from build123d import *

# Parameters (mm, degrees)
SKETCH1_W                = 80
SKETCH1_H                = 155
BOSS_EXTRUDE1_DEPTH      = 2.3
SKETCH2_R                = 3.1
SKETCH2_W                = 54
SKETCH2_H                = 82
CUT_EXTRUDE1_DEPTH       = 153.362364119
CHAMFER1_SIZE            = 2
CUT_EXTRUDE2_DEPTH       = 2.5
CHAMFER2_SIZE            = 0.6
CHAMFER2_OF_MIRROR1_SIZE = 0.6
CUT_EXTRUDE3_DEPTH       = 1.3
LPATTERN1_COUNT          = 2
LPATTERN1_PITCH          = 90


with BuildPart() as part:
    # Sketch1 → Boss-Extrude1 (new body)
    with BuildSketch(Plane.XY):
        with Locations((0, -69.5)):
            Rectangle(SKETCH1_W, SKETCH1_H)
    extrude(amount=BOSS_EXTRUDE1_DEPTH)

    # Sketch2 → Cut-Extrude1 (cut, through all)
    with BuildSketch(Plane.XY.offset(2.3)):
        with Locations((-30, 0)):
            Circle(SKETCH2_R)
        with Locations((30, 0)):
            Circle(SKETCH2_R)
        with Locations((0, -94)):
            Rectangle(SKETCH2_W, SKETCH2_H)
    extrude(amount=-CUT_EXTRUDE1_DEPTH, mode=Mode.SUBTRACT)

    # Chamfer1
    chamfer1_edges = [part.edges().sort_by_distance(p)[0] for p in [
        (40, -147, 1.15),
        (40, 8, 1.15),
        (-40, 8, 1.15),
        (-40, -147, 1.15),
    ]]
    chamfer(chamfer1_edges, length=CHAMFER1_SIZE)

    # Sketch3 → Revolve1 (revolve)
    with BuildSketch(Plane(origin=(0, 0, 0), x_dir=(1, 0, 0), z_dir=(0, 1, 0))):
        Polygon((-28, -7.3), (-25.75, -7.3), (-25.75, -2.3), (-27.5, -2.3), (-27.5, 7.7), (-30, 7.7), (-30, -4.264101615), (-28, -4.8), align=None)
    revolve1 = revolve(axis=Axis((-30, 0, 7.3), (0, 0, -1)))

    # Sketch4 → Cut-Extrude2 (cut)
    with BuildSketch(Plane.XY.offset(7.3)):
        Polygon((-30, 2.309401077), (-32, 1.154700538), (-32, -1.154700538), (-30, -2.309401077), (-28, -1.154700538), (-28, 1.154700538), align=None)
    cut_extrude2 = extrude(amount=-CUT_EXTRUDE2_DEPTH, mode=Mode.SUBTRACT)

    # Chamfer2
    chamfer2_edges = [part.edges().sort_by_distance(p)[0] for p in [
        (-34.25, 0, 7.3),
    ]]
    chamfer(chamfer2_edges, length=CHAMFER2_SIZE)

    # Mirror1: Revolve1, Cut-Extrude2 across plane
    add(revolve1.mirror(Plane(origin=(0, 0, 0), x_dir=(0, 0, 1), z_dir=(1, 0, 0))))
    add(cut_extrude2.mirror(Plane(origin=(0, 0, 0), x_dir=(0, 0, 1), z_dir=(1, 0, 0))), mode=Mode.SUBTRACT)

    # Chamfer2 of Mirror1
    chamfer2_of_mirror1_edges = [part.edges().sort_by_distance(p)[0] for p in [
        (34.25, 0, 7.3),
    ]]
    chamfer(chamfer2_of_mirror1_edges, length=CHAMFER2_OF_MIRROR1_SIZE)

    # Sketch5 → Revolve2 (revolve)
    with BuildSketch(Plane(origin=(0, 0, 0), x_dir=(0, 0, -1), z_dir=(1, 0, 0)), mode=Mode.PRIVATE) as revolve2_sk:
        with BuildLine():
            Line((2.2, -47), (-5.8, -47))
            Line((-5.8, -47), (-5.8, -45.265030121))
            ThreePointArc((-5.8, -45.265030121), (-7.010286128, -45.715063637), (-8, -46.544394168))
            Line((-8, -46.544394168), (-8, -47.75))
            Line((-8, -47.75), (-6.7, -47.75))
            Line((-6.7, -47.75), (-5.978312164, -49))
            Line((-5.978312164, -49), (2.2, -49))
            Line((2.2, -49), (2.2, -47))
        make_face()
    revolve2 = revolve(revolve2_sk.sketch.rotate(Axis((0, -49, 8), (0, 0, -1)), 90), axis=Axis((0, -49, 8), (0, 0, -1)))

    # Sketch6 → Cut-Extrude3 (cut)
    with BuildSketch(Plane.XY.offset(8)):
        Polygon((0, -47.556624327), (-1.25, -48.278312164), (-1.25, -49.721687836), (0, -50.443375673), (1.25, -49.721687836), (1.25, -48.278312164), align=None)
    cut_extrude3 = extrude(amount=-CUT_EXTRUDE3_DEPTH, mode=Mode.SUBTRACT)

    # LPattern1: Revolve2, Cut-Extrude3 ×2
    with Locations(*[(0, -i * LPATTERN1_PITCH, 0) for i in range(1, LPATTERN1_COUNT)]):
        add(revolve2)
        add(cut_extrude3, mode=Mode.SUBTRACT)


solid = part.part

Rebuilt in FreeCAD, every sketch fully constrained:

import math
import FreeCAD as App
import Part
import Sketcher
Q = App.Units.Quantity


def edges_at(feature, points):
    """Names of the edges that pass closest to the given points."""
    edges = feature.Shape.Edges
    near = lambda p: min(range(len(edges)), key=lambda i: edges[i].distToShape(Part.Vertex(*p))[0])
    return sorted({f"Edge{near(p) + 1}" for p in points})


def add_polygon(sketch, points):
    """Adds a closed chain of lines whose ends are joined by coincident constraints."""
    first, n = sketch.GeometryCount, len(points)
    for a, b in zip(points, points[1:] + points[:1]):
        sketch.addGeometry(Part.LineSegment(App.Vector(*a, 0), App.Vector(*b, 0)), False)
    for i in range(n):
        sketch.addConstraint(Sketcher.Constraint("Coincident", first + i, 2, first + (i + 1) % n, 1))

doc = App.newDocument("Part")
body = doc.addObject("PartDesign::Body", "Body")

# Sketch on XY plane
sketch1 = body.newObject("Sketcher::SketchObject", "Sketch")
sketch1.AttachmentSupport = (doc.getObject("XY_Plane"), [""])
sketch1.MapMode = "FlatFace"
add_polygon(sketch1, [(-40, 8), (-40, -147), (40, -147), (40, 8)])  # lines 0-3
sketch1.addConstraint(Sketcher.Constraint("Vertical", 0))
sketch1.addConstraint(Sketcher.Constraint("Horizontal", 1))
sketch1.addConstraint(Sketcher.Constraint("Vertical", 2))
sketch1.addConstraint(Sketcher.Constraint("Horizontal", 3))
sketch1.addConstraint(Sketcher.Constraint("DistanceX", 1, 1, 1, 2, Q("80 mm")))
sketch1.addConstraint(Sketcher.Constraint("DistanceY", 0, 2, 0, 1, Q("155 mm")))
sketch1.addConstraint(Sketcher.Constraint("DistanceX", 0, 2, -1, 1, Q("40 mm")))
sketch1.addConstraint(Sketcher.Constraint("DistanceY", 0, 2, -1, 1, Q("147 mm")))
pad1 = body.newObject("PartDesign::Pad", "Pad")
pad1.Profile = sketch1
pad1.Length = 2.3

# Sketch on XY plane
sketch2 = body.newObject("Sketcher::SketchObject", "Sketch001")
sketch2.AttachmentSupport = (doc.getObject("XY_Plane"), [""])
sketch2.MapMode = "FlatFace"
sketch2.AttachmentOffset = App.Placement(App.Vector(0, 0, 2.3), App.Rotation())
sketch2.addGeometry(Part.Circle(App.Vector(-30, 0, 0), App.Vector(0, 0, 1), 3.1), False)  # 0
sketch2.addGeometry(Part.Circle(App.Vector(30, 0, 0), App.Vector(0, 0, 1), 3.1), False)  # 1
add_polygon(sketch2, [(-27, -53), (-27, -135), (27, -135), (27, -53)])  # lines 2-5
sketch2.addConstraint(Sketcher.Constraint("Vertical", 2))
sketch2.addConstraint(Sketcher.Constraint("Horizontal", 3))
sketch2.addConstraint(Sketcher.Constraint("Vertical", 4))
sketch2.addConstraint(Sketcher.Constraint("Horizontal", 5))
sketch2.addConstraint(Sketcher.Constraint("Equal", 0, 1))
sketch2.addConstraint(Sketcher.Constraint("Symmetric", 0, 3, 1, 3, -1, 1))
sketch2.addConstraint(Sketcher.Constraint("PointOnObject", 0, 3, -1))
sketch2.addConstraint(Sketcher.Constraint("Diameter", 0, Q("6.2 mm")))
sketch2.addConstraint(Sketcher.Constraint("DistanceX", 3, 1, 3, 2, Q("54 mm")))
sketch2.addConstraint(Sketcher.Constraint("DistanceY", 2, 2, 2, 1, Q("82 mm")))
sketch2.addConstraint(Sketcher.Constraint("DistanceX", 0, 3, -1, 1, Q("30 mm")))
sketch2.addConstraint(Sketcher.Constraint("DistanceX", 2, 2, -1, 1, Q("27 mm")))
sketch2.addConstraint(Sketcher.Constraint("DistanceY", 2, 2, -1, 1, Q("135 mm")))
pocket1 = body.newObject("PartDesign::Pocket", "Pocket")
pocket1.Profile = sketch2
pocket1.Type = "ThroughAll"
doc.recompute()

chamfer = body.newObject("PartDesign::Chamfer", "Chamfer")
chamfer.Base = (pocket1, edges_at(pocket1, [
    (40, -147, 1.15),
    (40, 8, 1.15),
    (-40, 8, 1.15),
    (-40, -147, 1.15),
]))
chamfer.Size = 2

# Sketch on XZ plane
sketch3 = body.newObject("Sketcher::SketchObject", "Sketch002")
sketch3.AttachmentSupport = (doc.getObject("XZ_Plane"), [""])
sketch3.MapMode = "FlatFace"
add_polygon(sketch3, [(-28, 7.3), (-25.75, 7.3), (-25.75, 2.3), (-27.5, 2.3), (-27.5, -7.7), (-30, -7.7), (-30, 4.264102), (-28, 4.8)])  # lines 0-7
sketch3.addGeometry(Part.LineSegment(App.Vector(-30, 7.3, 0), App.Vector(-30, -7.7, 0)), True)  # axis
sketch3.addConstraint(Sketcher.Constraint("Horizontal", 0))
sketch3.addConstraint(Sketcher.Constraint("Vertical", 1))
sketch3.addConstraint(Sketcher.Constraint("Horizontal", 2))
sketch3.addConstraint(Sketcher.Constraint("Vertical", 3))
sketch3.addConstraint(Sketcher.Constraint("Horizontal", 4))
sketch3.addConstraint(Sketcher.Constraint("Vertical", 5))
sketch3.addConstraint(Sketcher.Constraint("Vertical", 7))
sketch3.addConstraint(Sketcher.Constraint("Vertical", 8))
sketch3.addConstraint(Sketcher.Constraint("Coincident", 8, 2, 4, 2))
sketch3.addConstraint(Sketcher.Constraint("Horizontal", 7, 2, 8, 1))
sketch3.addConstraint(Sketcher.Constraint("Equal", 4, 7))
sketch3.addConstraint(Sketcher.Constraint("DistanceY", 1, 2, 1, 1, Q("5 mm")))
sketch3.addConstraint(Sketcher.Constraint("DistanceY", 3, 2, 3, 1, Q("10 mm")))
sketch3.addConstraint(Sketcher.Constraint("Angle", 6, Q("15 deg")))
sketch3.addConstraint(Sketcher.Constraint("DistanceX", 4, 2, 4, 1, Q("2.5 mm")))
sketch3.addConstraint(Sketcher.Constraint("DistanceX", 4, 2, -1, 1, Q("30 mm")))
sketch3.addConstraint(Sketcher.Constraint("DistanceX", 6, 2, -1, 1, Q("28 mm")))
sketch3.addConstraint(Sketcher.Constraint("DistanceX", 0, 1, 0, 2, Q("2.25 mm")))
sketch3.addConstraint(Sketcher.Constraint("DistanceY", -1, 1, 0, 2, Q("7.3 mm")))
revolution = body.newObject("PartDesign::Revolution", "Revolution")
revolution.Profile = sketch3
revolution.ReferenceAxis = (sketch3, ["Axis0"])
revolution.Angle = 360

# Sketch on XY plane
sketch4 = body.newObject("Sketcher::SketchObject", "Sketch003")
sketch4.AttachmentSupport = (doc.getObject("XY_Plane"), [""])
sketch4.MapMode = "FlatFace"
sketch4.AttachmentOffset = App.Placement(App.Vector(0, 0, 7.3), App.Rotation())
add_polygon(sketch4, [(-30, 2.309401), (-32, 1.154701), (-32, -1.154701), (-30, -2.309401), (-28, -1.154701), (-28, 1.154701)])  # lines 0-5
sketch4.addConstraint(Sketcher.Constraint("Vertical", 1))
sketch4.addConstraint(Sketcher.Constraint("Vertical", 4))
sketch4.addConstraint(Sketcher.Constraint("Symmetric", 2, 2, 5, 2, -1))
sketch4.addConstraint(Sketcher.Constraint("Parallel", 0, 3))
sketch4.addConstraint(Sketcher.Constraint("Parallel", 2, 5))
sketch4.addConstraint(Sketcher.Constraint("Horizontal", 1, 2, 3, 2))
sketch4.addConstraint(Sketcher.Constraint("Horizontal", 0, 2, 4, 2))
sketch4.addConstraint(Sketcher.Constraint("Angle", 0, Q("-150 deg")))
sketch4.addConstraint(Sketcher.Constraint("DistanceX", 0, 2, -1, 1, Q("32 mm")))
sketch4.addConstraint(Sketcher.Constraint("DistanceX", 2, 2, -1, 1, Q("30 mm")))
sketch4.addConstraint(Sketcher.Constraint("DistanceY", 1, 2, 1, 1, Q("2.309401 mm")))
pocket2 = body.newObject("PartDesign::Pocket", "Pocket001")
pocket2.Profile = sketch4
pocket2.Length = 2.5
doc.recompute()

chamfer2 = body.newObject("PartDesign::Chamfer", "Chamfer001")
chamfer2.Base = (pocket2, edges_at(pocket2, [(-34.25, 0, 7.3)]))
chamfer2.Size = 0.6
doc.recompute()

mirrored = body.newObject("PartDesign::Mirrored", "Mirrored")
mirrored.Originals = [revolution, pocket2]
mirrored.MirrorPlane = (doc.getObject("YZ_Plane"), [""])
body.Tip = mirrored
doc.recompute()

chamfer3 = body.newObject("PartDesign::Chamfer", "Chamfer002")
chamfer3.Base = (mirrored, edges_at(mirrored, [(34.25, 0, 7.3)]))
chamfer3.Size = 0.6

# Sketch on YZ plane
sketch5 = body.newObject("Sketcher::SketchObject", "Sketch004")
sketch5.AttachmentSupport = (doc.getObject("YZ_Plane"), [""])
sketch5.MapMode = "FlatFace"
sketch5.addGeometry(Part.LineSegment(App.Vector(-47, -2.2, 0), App.Vector(-47, 5.8, 0)), False)
sketch5.addGeometry(Part.LineSegment(App.Vector(-47, 5.8, 0), App.Vector(-45.26503, 5.8, 0)), False)
sketch5.addGeometry(Part.ArcOfCircle(Part.Circle(App.Vector(-49, 5.1, 0), App.Vector(0, 0, 1), 3.8), math.radians(10.615108), math.radians(49.743387)), False)
sketch5.addGeometry(Part.LineSegment(App.Vector(-46.544394, 8, 0), App.Vector(-47.75, 8, 0)), False)
sketch5.addGeometry(Part.LineSegment(App.Vector(-47.75, 8, 0), App.Vector(-47.75, 6.7, 0)), False)
sketch5.addGeometry(Part.LineSegment(App.Vector(-47.75, 6.7, 0), App.Vector(-49, 5.978312, 0)), False)
sketch5.addGeometry(Part.LineSegment(App.Vector(-49, 5.978312, 0), App.Vector(-49, -2.2, 0)), False)
sketch5.addGeometry(Part.LineSegment(App.Vector(-49, -2.2, 0), App.Vector(-47, -2.2, 0)), False)
sketch5.addGeometry(Part.LineSegment(App.Vector(-49, 8, 0), App.Vector(-49, -2.2, 0)), True)  # axis
sketch5.addConstraint(Sketcher.Constraint("Coincident", 0, 2, 1, 1))
sketch5.addConstraint(Sketcher.Constraint("Coincident", 1, 2, 2, 1))
sketch5.addConstraint(Sketcher.Constraint("Coincident", 2, 2, 3, 1))
sketch5.addConstraint(Sketcher.Constraint("Coincident", 3, 2, 4, 1))
sketch5.addConstraint(Sketcher.Constraint("Coincident", 4, 2, 5, 1))
sketch5.addConstraint(Sketcher.Constraint("Coincident", 5, 2, 6, 1))
sketch5.addConstraint(Sketcher.Constraint("Coincident", 6, 2, 7, 1))
sketch5.addConstraint(Sketcher.Constraint("Coincident", 7, 2, 0, 1))
sketch5.addConstraint(Sketcher.Constraint("Vertical", 0))
sketch5.addConstraint(Sketcher.Constraint("Horizontal", 1))
sketch5.addConstraint(Sketcher.Constraint("Horizontal", 3))
sketch5.addConstraint(Sketcher.Constraint("Vertical", 4))
sketch5.addConstraint(Sketcher.Constraint("Vertical", 6))
sketch5.addConstraint(Sketcher.Constraint("Horizontal", 7))
sketch5.addConstraint(Sketcher.Constraint("Vertical", 8))
sketch5.addConstraint(Sketcher.Constraint("Coincident", 8, 2, 6, 2))
sketch5.addConstraint(Sketcher.Constraint("Horizontal", 3, 2, 8, 1))
sketch5.addConstraint(Sketcher.Constraint("Vertical", 2, 3, 5, 2))
sketch5.addConstraint(Sketcher.Constraint("Radius", 2, Q("3.8 mm")))
sketch5.addConstraint(Sketcher.Constraint("DistanceX", 7, 1, 7, 2, Q("2 mm")))
sketch5.addConstraint(Sketcher.Constraint("DistanceY", 0, 1, 0, 2, Q("8 mm")))
sketch5.addConstraint(Sketcher.Constraint("Angle", 5, Q("-150 deg")))
sketch5.addConstraint(Sketcher.Constraint("DistanceY", 4, 2, 4, 1, Q("1.3 mm")))
sketch5.addConstraint(Sketcher.Constraint("DistanceY", 8, 2, 8, 1, Q("10.2 mm")))
sketch5.addConstraint(Sketcher.Constraint("DistanceX", 2, 3, -1, 1, Q("49 mm")))
sketch5.addConstraint(Sketcher.Constraint("DistanceY", -1, 1, 2, 2, Q("8 mm")))
sketch5.addConstraint(Sketcher.Constraint("DistanceY", -1, 1, 2, 3, Q("5.1 mm")))
sketch5.addConstraint(Sketcher.Constraint("DistanceX", 3, 2, -1, 1, Q("47.75 mm")))
revolution2 = body.newObject("PartDesign::Revolution", "Revolution001")
revolution2.Profile = sketch5
revolution2.ReferenceAxis = (sketch5, ["Axis0"])
revolution2.Angle = 360

# Sketch on XY plane
sketch6 = body.newObject("Sketcher::SketchObject", "Sketch005")
sketch6.AttachmentSupport = (doc.getObject("XY_Plane"), [""])
sketch6.MapMode = "FlatFace"
sketch6.AttachmentOffset = App.Placement(App.Vector(0, 0, 8), App.Rotation())
add_polygon(sketch6, [(0, -47.556624), (-1.25, -48.278312), (-1.25, -49.721688), (0, -50.443376), (1.25, -49.721688), (1.25, -48.278312)])  # lines 0-5
sketch6.addConstraint(Sketcher.Constraint("Vertical", 1))
sketch6.addConstraint(Sketcher.Constraint("Vertical", 4))
sketch6.addConstraint(Sketcher.Constraint("Symmetric", 1, 2, 3, 2, -2))
sketch6.addConstraint(Sketcher.Constraint("PointOnObject", 2, 2, -2))
sketch6.addConstraint(Sketcher.Constraint("PointOnObject", 5, 2, -2))
sketch6.addConstraint(Sketcher.Constraint("Parallel", 0, 3))
sketch6.addConstraint(Sketcher.Constraint("Parallel", 2, 5))
sketch6.addConstraint(Sketcher.Constraint("Angle", 0, Q("-150 deg")))
sketch6.addConstraint(Sketcher.Constraint("DistanceX", 1, 2, 3, 2, Q("2.5 mm")))
sketch6.addConstraint(Sketcher.Constraint("DistanceY", 1, 2, 1, 1, Q("1.443376 mm")))
sketch6.addConstraint(Sketcher.Constraint("DistanceY", 0, 2, -1, 1, Q("48.278312 mm")))
pocket3 = body.newObject("PartDesign::Pocket", "Pocket002")
pocket3.Profile = sketch6
pocket3.Length = 1.3
doc.recompute()

linearpattern = body.newObject("PartDesign::LinearPattern", "LinearPattern")
linearpattern.Originals = [revolution2, pocket3]
linearpattern.Direction = (doc.getObject("Y_Axis"), [""])
linearpattern.Mode = "offset"
linearpattern.Offset = 90
linearpattern.Occurrences = 2
linearpattern.Reversed = True
body.Tip = linearpattern

doc.recompute()
